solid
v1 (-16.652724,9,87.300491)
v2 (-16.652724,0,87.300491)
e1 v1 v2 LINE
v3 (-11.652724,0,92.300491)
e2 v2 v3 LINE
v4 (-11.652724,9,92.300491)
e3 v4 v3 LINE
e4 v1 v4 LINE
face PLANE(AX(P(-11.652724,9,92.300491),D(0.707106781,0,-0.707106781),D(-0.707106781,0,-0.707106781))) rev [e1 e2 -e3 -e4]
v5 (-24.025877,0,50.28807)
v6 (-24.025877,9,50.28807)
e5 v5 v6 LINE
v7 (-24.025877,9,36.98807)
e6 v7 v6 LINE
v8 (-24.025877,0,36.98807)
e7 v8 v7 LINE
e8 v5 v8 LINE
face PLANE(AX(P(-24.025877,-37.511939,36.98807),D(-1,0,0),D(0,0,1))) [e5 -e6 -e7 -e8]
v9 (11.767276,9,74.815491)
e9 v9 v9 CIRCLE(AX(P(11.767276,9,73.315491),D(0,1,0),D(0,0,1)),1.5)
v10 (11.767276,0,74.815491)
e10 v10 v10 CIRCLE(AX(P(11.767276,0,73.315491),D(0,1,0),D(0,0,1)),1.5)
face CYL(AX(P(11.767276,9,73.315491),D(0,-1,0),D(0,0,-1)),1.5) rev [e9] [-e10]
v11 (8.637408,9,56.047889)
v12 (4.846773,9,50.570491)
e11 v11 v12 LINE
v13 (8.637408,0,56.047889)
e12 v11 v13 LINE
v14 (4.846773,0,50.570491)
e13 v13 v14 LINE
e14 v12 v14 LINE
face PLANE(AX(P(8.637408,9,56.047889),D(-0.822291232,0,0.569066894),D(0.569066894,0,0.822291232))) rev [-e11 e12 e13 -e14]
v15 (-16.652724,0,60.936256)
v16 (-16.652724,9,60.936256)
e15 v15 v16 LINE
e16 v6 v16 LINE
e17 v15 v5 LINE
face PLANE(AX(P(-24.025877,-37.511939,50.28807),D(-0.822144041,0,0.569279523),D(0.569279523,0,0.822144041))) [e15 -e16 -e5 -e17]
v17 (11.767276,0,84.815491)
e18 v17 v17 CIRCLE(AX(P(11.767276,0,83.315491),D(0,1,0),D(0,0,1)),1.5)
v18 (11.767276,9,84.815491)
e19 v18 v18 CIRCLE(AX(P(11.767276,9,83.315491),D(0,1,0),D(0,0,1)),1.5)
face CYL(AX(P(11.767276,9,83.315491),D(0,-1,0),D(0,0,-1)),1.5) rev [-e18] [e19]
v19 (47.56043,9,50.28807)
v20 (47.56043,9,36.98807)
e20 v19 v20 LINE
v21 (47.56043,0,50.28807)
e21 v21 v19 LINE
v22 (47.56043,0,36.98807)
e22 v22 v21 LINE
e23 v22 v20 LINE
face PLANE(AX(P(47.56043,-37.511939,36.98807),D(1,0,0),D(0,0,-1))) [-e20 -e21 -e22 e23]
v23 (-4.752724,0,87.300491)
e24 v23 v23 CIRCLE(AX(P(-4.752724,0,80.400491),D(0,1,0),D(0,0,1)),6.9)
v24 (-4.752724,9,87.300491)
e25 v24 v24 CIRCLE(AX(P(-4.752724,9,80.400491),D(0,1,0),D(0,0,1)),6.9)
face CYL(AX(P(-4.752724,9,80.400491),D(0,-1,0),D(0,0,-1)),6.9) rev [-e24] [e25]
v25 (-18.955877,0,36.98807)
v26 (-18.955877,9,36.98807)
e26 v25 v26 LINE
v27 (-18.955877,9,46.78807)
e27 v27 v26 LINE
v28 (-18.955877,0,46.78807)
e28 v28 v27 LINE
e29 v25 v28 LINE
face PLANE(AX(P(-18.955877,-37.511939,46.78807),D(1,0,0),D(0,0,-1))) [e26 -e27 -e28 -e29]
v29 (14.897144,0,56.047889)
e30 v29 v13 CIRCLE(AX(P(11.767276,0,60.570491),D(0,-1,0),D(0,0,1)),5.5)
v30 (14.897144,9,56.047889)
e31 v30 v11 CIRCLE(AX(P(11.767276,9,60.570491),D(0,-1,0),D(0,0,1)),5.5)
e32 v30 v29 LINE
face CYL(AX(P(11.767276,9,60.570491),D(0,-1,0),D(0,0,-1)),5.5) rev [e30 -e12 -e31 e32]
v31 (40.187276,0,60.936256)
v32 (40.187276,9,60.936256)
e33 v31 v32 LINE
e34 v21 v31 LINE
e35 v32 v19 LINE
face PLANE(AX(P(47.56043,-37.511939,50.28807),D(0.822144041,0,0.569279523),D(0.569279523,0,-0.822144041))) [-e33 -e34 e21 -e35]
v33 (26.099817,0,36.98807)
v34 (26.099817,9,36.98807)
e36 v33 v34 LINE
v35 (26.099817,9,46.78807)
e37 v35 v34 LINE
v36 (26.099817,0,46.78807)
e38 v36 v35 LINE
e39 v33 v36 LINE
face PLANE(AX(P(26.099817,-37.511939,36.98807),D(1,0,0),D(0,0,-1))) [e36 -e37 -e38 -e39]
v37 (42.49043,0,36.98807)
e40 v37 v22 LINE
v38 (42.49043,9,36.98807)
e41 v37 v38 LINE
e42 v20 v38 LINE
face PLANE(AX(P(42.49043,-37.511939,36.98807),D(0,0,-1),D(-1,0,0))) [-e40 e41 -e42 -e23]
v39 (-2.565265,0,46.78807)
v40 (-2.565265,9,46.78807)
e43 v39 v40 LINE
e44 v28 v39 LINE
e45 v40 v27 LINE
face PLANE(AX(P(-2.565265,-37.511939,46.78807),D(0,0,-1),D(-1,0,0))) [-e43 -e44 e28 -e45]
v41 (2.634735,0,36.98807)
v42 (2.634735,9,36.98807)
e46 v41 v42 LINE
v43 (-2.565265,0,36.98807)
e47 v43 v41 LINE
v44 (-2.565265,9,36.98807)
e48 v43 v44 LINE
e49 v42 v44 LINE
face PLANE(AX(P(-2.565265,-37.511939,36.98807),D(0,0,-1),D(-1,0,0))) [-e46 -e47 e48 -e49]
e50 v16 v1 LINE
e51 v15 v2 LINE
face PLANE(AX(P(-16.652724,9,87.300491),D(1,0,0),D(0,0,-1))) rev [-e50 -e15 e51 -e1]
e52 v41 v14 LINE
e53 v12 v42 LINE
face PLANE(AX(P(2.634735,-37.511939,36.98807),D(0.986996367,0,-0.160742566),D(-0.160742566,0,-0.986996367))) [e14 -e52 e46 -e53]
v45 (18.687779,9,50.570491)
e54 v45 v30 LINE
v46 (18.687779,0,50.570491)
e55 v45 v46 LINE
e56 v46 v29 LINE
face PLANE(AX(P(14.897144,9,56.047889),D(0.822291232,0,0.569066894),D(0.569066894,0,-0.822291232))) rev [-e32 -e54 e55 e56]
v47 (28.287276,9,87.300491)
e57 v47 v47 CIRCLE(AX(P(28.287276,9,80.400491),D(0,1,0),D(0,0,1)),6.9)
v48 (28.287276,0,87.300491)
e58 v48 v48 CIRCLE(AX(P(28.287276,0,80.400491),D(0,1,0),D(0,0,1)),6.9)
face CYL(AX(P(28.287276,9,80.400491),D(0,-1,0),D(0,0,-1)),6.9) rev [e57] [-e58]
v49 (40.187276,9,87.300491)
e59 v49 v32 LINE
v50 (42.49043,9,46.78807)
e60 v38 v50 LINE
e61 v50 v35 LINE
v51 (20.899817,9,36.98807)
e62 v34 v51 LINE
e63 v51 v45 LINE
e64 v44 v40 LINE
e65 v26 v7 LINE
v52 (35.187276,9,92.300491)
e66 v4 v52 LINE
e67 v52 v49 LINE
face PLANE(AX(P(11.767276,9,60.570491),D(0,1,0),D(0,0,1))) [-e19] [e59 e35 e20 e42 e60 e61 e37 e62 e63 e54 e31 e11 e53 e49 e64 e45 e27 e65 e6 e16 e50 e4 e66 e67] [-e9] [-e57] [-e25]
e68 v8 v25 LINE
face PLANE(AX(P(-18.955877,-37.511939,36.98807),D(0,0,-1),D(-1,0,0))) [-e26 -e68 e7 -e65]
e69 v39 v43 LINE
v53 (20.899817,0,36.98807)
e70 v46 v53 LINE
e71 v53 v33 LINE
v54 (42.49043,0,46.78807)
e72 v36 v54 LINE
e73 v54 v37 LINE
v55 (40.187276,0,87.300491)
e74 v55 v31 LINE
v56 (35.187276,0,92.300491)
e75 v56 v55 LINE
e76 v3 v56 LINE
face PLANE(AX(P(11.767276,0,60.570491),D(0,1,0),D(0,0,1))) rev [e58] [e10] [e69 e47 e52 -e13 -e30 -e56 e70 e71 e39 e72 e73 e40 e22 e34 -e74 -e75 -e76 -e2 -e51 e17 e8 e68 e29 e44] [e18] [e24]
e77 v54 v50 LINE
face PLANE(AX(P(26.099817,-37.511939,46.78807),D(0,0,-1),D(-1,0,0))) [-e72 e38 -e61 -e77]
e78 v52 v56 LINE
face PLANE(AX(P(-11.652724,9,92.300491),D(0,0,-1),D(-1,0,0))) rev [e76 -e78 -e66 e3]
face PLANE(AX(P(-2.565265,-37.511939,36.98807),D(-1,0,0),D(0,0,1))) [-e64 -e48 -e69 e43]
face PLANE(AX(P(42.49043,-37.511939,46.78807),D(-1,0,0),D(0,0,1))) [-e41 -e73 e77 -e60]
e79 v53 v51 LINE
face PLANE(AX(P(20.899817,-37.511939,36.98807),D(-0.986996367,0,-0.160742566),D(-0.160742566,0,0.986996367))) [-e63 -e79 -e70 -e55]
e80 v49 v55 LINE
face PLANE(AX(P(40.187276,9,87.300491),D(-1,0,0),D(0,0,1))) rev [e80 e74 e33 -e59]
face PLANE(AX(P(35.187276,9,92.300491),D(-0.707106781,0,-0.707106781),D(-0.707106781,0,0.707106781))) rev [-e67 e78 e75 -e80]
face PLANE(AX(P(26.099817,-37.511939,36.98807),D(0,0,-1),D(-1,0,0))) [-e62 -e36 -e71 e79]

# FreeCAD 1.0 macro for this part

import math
import FreeCAD as App
import Part
import Sketcher
from FreeCAD import Vector
Q = App.Units.Quantity


def add_polygon(sketch, points):
    """Adds a closed chain of lines whose ends are joined by coincident constraints."""
    first, n = sketch.GeometryCount, len(points)
    for a, b in zip(points, points[1:] + points[:1]):
        sketch.addGeometry(Part.LineSegment(App.Vector(*a, 0), App.Vector(*b, 0)), False)
    for i in range(n):
        sketch.addConstraint(Sketcher.Constraint("Coincident", first + i, 2, first + (i + 1) % n, 1))

doc = App.newDocument("Part")
body = doc.addObject("PartDesign::Body", "Body")

# Sketch on XZ plane
sketch1 = body.newObject("Sketcher::SketchObject", "Sketch")
sketch1.AttachmentSupport = (doc.getObject("XZ_Plane"), [""])
sketch1.MapMode = "FlatFace"
sketch1.addGeometry([
    Part.LineSegment(Vector(4.8, 50.6, 0), Vector(-11.7, 50.6, 0)),  # 0
    Part.LineSegment(Vector(-11.7, 50.6, 0), Vector(-16.7, 55.6, 0)),  # 1
    Part.LineSegment(Vector(-16.7, 55.6, 0), Vector(-16.7, 87.3, 0)),  # 2
    Part.LineSegment(Vector(-16.7, 87.3, 0), Vector(-11.7, 92.3, 0)),  # 3
    Part.LineSegment(Vector(-11.7, 92.3, 0), Vector(35.2, 92.3, 0)),  # 4
    Part.LineSegment(Vector(35.2, 92.3, 0), Vector(40.2, 87.3, 0)),  # 5
    Part.LineSegment(Vector(40.2, 87.3, 0), Vector(40.2, 55.6, 0)),  # 6
    Part.LineSegment(Vector(40.2, 55.6, 0), Vector(35.2, 50.6, 0)),  # 7
    Part.LineSegment(Vector(35.2, 50.6, 0), Vector(18.7, 50.6, 0)),  # 8
    Part.LineSegment(Vector(18.7, 50.6, 0), Vector(14.9, 56, 0)),  # 9
    Part.ArcOfCircle(Part.Circle(Vector(11.8, 60.6, 0), Vector(0, 0, 1), 5.5), math.radians(-55), math.radians(235)),  # 10
    Part.LineSegment(Vector(8.6, 56, 0), Vector(4.8, 50.6, 0)),  # 11
    Part.Circle(Vector(28.3, 80.4, 0), Vector(0, 0, 1), 6.9),  # 12
    Part.Circle(Vector(11.8, 83.3, 0), Vector(0, 0, 1), 1.5),  # 13
    Part.Circle(Vector(-4.8, 80.4, 0), Vector(0, 0, 1), 6.9),  # 14
    Part.Circle(Vector(11.8, 73.3, 0), Vector(0, 0, 1), 1.5),  # 15
], False)
sketch1.addConstraint([
    Sketcher.Constraint("Coincident", 0, 2, 1, 1),
    Sketcher.Constraint("Coincident", 1, 2, 2, 1),
    Sketcher.Constraint("Coincident", 2, 2, 3, 1),
    Sketcher.Constraint("Coincident", 3, 2, 4, 1),
    Sketcher.Constraint("Coincident", 4, 2, 5, 1),
    Sketcher.Constraint("Coincident", 5, 2, 6, 1),
    Sketcher.Constraint("Coincident", 6, 2, 7, 1),
    Sketcher.Constraint("Coincident", 7, 2, 8, 1),
    Sketcher.Constraint("Coincident", 8, 2, 9, 1),
    Sketcher.Constraint("Coincident", 9, 2, 10, 1),
    Sketcher.Constraint("Coincident", 10, 2, 11, 1),
    Sketcher.Constraint("Coincident", 11, 2, 0, 1),
    Sketcher.Constraint("Horizontal", 0),
    Sketcher.Constraint("Vertical", 2),
    Sketcher.Constraint("Horizontal", 4),
    Sketcher.Constraint("Vertical", 6),
    Sketcher.Constraint("Horizontal", 8),
    Sketcher.Constraint("Equal", 12, 14),
    Sketcher.Constraint("Equal", 13, 15),
    Sketcher.Constraint("Perpendicular", 1, 3),
    Sketcher.Constraint("Perpendicular", 3, 5),
    Sketcher.Constraint("Perpendicular", 5, 7),
    Sketcher.Constraint("Horizontal", 12, 3, 14, 3),
    Sketcher.Constraint("Horizontal", 2, 2, 5, 2),
    Sketcher.Constraint("Horizontal", 1, 2, 6, 2),
    Sketcher.Constraint("Horizontal", 0, 2, 7, 2),
    Sketcher.Constraint("Horizontal", 9, 2, 10, 2),
    Sketcher.Constraint("Vertical", 10, 3, 13, 3),
    Sketcher.Constraint("Vertical", 13, 3, 15, 3),
    Sketcher.Constraint("Vertical", 0, 2, 3, 2),
    Sketcher.Constraint("Vertical", 4, 2, 7, 2),
    Sketcher.Constraint("Equal", 0, 8),
    Sketcher.Constraint("Equal", 9, 11),
    Sketcher.Constraint("Diameter", 13, 3.0),
    Sketcher.Constraint("Diameter", 12, 13.8),
    Sketcher.Constraint("Radius", 10, 5.5),
    Sketcher.Constraint("DistanceY", 15, 3, 13, 3, 10.0),
    Sketcher.Constraint("DistanceY", 0, 2, 10, 3, 10.0),
    Sketcher.Constraint("DistanceX", 1, 2, 0, 2, 5.0),
    Sketcher.Constraint("DistanceX", 4, 1, 4, 2, 46.84),
    Sketcher.Constraint("DistanceY", 2, 1, 2, 2, 31.73),
    Sketcher.Constraint("DistanceX", 0, 2, 14, 3, 6.9),
    Sketcher.Constraint("DistanceY", 14, 3, 2, 2, 6.9),
    Sketcher.Constraint("DistanceX", 12, 3, 4, 2, 6.9),
    Sketcher.Constraint("DistanceY", 12, 3, 13, 3, 2.915),
    Sketcher.Constraint("DistanceY", 9, 2, 10, 3, 4.522602),
    Sketcher.Constraint("Distance", 9, 6.661141),
    Sketcher.Constraint("DistanceY", -1, 1, 10, 3, 60.570491),
    Sketcher.Constraint("DistanceX", -1, 1, 8, 2, 18.687779),
])
pad1 = body.newObject("PartDesign::Pad", "Pad")
pad1.Profile = sketch1
pad1.Length = 9
pad1.Reversed = True

# Sketch on XZ plane
sketch2 = body.newObject("Sketcher::SketchObject", "Sketch001")
sketch2.AttachmentSupport = (doc.getObject("XZ_Plane"), [""])
sketch2.MapMode = "FlatFace"
sketch2.AttachmentOffset = App.Placement(Vector(0, 0, -9), App.Rotation())
add_polygon(sketch2, [(26, 37), (21, 37), (19, 51), (35, 51), (40, 56), (40, 61), (48, 50), (48, 37), (42, 37), (42, 47), (26, 47)])  # lines 0-10
add_polygon(sketch2, [(-19, 37), (-24, 37), (-24, 50), (-17, 61), (-17, 56), (-12, 51), (5, 51), (3, 37), (-3, 37), (-3, 47), (-19, 47)])  # lines 11-21
sketch2.addConstraint([
    Sketcher.Constraint("Horizontal", 0),
    Sketcher.Constraint("Horizontal", 2),
    Sketcher.Constraint("Vertical", 4),
    Sketcher.Constraint("Vertical", 6),
    Sketcher.Constraint("Horizontal", 7),
    Sketcher.Constraint("Vertical", 8),
    Sketcher.Constraint("Horizontal", 9),
    Sketcher.Constraint("Vertical", 10),
    Sketcher.Constraint("Horizontal", 11),
    Sketcher.Constraint("Vertical", 12),
    Sketcher.Constraint("Vertical", 14),
    Sketcher.Constraint("Horizontal", 16),
    Sketcher.Constraint("Horizontal", 18),
    Sketcher.Constraint("Vertical", 19),
    Sketcher.Constraint("Horizontal", 20),
    Sketcher.Constraint("Vertical", 21),
    Sketcher.Constraint("Perpendicular", 3, 15),
    Sketcher.Constraint("Horizontal", 0, 2, 6, 2),
    Sketcher.Constraint("Horizontal", 10, 2, 11, 2),
    Sketcher.Constraint("Horizontal", 5, 2, 12, 2),
    Sketcher.Constraint("Horizontal", 4, 2, 13, 2),
    Sketcher.Constraint("Horizontal", 3, 2, 14, 2),
    Sketcher.Constraint("Horizontal", 2, 2, 15, 2),
    Sketcher.Constraint("Horizontal", 11, 2, 17, 2),
    Sketcher.Constraint("Horizontal", 9, 2, 19, 2),
    Sketcher.Constraint("Equal", 7, 11),
    Sketcher.Constraint("Equal", 2, 16),
    Sketcher.Constraint("Equal", 0, 18),
    Sketcher.Constraint("Equal", 9, 20),
    Sketcher.Constraint("Equal", 5, 13),
    Sketcher.Constraint("Equal", 3, 15),
    Sketcher.Constraint("DistanceX", 0, 2, 0, 1, 5.2),
    Sketcher.Constraint("DistanceY", 6, 2, 6, 1, 13.3),
    Sketcher.Constraint("DistanceY", 8, 1, 8, 2, 9.8),
    Sketcher.Constraint("Angle", 5, Q("-55.3 deg")),
    Sketcher.Constraint("DistanceX", 2, 2, 3, 2, 5.0),
    Sketcher.Constraint("DistanceX", 7, 2, 7, 1, 5.07),
    Sketcher.Constraint("Angle", 1, Q("99.25 deg")),
    Sketcher.Constraint("Distance", 1, 13.761369),
    Sketcher.Constraint("DistanceX", 2, 1, 2, 2, 16.499497),
    Sketcher.Constraint("DistanceX", 9, 2, 9, 1, 16.390613),
    Sketcher.Constraint("DistanceY", -1, 1, 0, 2, 36.98807),
    Sketcher.Constraint("DistanceX", -1, 1, 1, 2, 18.687779),
    Sketcher.Constraint("DistanceX", 13, 2, 0, 2, 37.552541),
])
pad2 = body.newObject("PartDesign::Pad", "Pad001")
pad2.Profile = sketch2
pad2.Length = 9

doc.recompute()
